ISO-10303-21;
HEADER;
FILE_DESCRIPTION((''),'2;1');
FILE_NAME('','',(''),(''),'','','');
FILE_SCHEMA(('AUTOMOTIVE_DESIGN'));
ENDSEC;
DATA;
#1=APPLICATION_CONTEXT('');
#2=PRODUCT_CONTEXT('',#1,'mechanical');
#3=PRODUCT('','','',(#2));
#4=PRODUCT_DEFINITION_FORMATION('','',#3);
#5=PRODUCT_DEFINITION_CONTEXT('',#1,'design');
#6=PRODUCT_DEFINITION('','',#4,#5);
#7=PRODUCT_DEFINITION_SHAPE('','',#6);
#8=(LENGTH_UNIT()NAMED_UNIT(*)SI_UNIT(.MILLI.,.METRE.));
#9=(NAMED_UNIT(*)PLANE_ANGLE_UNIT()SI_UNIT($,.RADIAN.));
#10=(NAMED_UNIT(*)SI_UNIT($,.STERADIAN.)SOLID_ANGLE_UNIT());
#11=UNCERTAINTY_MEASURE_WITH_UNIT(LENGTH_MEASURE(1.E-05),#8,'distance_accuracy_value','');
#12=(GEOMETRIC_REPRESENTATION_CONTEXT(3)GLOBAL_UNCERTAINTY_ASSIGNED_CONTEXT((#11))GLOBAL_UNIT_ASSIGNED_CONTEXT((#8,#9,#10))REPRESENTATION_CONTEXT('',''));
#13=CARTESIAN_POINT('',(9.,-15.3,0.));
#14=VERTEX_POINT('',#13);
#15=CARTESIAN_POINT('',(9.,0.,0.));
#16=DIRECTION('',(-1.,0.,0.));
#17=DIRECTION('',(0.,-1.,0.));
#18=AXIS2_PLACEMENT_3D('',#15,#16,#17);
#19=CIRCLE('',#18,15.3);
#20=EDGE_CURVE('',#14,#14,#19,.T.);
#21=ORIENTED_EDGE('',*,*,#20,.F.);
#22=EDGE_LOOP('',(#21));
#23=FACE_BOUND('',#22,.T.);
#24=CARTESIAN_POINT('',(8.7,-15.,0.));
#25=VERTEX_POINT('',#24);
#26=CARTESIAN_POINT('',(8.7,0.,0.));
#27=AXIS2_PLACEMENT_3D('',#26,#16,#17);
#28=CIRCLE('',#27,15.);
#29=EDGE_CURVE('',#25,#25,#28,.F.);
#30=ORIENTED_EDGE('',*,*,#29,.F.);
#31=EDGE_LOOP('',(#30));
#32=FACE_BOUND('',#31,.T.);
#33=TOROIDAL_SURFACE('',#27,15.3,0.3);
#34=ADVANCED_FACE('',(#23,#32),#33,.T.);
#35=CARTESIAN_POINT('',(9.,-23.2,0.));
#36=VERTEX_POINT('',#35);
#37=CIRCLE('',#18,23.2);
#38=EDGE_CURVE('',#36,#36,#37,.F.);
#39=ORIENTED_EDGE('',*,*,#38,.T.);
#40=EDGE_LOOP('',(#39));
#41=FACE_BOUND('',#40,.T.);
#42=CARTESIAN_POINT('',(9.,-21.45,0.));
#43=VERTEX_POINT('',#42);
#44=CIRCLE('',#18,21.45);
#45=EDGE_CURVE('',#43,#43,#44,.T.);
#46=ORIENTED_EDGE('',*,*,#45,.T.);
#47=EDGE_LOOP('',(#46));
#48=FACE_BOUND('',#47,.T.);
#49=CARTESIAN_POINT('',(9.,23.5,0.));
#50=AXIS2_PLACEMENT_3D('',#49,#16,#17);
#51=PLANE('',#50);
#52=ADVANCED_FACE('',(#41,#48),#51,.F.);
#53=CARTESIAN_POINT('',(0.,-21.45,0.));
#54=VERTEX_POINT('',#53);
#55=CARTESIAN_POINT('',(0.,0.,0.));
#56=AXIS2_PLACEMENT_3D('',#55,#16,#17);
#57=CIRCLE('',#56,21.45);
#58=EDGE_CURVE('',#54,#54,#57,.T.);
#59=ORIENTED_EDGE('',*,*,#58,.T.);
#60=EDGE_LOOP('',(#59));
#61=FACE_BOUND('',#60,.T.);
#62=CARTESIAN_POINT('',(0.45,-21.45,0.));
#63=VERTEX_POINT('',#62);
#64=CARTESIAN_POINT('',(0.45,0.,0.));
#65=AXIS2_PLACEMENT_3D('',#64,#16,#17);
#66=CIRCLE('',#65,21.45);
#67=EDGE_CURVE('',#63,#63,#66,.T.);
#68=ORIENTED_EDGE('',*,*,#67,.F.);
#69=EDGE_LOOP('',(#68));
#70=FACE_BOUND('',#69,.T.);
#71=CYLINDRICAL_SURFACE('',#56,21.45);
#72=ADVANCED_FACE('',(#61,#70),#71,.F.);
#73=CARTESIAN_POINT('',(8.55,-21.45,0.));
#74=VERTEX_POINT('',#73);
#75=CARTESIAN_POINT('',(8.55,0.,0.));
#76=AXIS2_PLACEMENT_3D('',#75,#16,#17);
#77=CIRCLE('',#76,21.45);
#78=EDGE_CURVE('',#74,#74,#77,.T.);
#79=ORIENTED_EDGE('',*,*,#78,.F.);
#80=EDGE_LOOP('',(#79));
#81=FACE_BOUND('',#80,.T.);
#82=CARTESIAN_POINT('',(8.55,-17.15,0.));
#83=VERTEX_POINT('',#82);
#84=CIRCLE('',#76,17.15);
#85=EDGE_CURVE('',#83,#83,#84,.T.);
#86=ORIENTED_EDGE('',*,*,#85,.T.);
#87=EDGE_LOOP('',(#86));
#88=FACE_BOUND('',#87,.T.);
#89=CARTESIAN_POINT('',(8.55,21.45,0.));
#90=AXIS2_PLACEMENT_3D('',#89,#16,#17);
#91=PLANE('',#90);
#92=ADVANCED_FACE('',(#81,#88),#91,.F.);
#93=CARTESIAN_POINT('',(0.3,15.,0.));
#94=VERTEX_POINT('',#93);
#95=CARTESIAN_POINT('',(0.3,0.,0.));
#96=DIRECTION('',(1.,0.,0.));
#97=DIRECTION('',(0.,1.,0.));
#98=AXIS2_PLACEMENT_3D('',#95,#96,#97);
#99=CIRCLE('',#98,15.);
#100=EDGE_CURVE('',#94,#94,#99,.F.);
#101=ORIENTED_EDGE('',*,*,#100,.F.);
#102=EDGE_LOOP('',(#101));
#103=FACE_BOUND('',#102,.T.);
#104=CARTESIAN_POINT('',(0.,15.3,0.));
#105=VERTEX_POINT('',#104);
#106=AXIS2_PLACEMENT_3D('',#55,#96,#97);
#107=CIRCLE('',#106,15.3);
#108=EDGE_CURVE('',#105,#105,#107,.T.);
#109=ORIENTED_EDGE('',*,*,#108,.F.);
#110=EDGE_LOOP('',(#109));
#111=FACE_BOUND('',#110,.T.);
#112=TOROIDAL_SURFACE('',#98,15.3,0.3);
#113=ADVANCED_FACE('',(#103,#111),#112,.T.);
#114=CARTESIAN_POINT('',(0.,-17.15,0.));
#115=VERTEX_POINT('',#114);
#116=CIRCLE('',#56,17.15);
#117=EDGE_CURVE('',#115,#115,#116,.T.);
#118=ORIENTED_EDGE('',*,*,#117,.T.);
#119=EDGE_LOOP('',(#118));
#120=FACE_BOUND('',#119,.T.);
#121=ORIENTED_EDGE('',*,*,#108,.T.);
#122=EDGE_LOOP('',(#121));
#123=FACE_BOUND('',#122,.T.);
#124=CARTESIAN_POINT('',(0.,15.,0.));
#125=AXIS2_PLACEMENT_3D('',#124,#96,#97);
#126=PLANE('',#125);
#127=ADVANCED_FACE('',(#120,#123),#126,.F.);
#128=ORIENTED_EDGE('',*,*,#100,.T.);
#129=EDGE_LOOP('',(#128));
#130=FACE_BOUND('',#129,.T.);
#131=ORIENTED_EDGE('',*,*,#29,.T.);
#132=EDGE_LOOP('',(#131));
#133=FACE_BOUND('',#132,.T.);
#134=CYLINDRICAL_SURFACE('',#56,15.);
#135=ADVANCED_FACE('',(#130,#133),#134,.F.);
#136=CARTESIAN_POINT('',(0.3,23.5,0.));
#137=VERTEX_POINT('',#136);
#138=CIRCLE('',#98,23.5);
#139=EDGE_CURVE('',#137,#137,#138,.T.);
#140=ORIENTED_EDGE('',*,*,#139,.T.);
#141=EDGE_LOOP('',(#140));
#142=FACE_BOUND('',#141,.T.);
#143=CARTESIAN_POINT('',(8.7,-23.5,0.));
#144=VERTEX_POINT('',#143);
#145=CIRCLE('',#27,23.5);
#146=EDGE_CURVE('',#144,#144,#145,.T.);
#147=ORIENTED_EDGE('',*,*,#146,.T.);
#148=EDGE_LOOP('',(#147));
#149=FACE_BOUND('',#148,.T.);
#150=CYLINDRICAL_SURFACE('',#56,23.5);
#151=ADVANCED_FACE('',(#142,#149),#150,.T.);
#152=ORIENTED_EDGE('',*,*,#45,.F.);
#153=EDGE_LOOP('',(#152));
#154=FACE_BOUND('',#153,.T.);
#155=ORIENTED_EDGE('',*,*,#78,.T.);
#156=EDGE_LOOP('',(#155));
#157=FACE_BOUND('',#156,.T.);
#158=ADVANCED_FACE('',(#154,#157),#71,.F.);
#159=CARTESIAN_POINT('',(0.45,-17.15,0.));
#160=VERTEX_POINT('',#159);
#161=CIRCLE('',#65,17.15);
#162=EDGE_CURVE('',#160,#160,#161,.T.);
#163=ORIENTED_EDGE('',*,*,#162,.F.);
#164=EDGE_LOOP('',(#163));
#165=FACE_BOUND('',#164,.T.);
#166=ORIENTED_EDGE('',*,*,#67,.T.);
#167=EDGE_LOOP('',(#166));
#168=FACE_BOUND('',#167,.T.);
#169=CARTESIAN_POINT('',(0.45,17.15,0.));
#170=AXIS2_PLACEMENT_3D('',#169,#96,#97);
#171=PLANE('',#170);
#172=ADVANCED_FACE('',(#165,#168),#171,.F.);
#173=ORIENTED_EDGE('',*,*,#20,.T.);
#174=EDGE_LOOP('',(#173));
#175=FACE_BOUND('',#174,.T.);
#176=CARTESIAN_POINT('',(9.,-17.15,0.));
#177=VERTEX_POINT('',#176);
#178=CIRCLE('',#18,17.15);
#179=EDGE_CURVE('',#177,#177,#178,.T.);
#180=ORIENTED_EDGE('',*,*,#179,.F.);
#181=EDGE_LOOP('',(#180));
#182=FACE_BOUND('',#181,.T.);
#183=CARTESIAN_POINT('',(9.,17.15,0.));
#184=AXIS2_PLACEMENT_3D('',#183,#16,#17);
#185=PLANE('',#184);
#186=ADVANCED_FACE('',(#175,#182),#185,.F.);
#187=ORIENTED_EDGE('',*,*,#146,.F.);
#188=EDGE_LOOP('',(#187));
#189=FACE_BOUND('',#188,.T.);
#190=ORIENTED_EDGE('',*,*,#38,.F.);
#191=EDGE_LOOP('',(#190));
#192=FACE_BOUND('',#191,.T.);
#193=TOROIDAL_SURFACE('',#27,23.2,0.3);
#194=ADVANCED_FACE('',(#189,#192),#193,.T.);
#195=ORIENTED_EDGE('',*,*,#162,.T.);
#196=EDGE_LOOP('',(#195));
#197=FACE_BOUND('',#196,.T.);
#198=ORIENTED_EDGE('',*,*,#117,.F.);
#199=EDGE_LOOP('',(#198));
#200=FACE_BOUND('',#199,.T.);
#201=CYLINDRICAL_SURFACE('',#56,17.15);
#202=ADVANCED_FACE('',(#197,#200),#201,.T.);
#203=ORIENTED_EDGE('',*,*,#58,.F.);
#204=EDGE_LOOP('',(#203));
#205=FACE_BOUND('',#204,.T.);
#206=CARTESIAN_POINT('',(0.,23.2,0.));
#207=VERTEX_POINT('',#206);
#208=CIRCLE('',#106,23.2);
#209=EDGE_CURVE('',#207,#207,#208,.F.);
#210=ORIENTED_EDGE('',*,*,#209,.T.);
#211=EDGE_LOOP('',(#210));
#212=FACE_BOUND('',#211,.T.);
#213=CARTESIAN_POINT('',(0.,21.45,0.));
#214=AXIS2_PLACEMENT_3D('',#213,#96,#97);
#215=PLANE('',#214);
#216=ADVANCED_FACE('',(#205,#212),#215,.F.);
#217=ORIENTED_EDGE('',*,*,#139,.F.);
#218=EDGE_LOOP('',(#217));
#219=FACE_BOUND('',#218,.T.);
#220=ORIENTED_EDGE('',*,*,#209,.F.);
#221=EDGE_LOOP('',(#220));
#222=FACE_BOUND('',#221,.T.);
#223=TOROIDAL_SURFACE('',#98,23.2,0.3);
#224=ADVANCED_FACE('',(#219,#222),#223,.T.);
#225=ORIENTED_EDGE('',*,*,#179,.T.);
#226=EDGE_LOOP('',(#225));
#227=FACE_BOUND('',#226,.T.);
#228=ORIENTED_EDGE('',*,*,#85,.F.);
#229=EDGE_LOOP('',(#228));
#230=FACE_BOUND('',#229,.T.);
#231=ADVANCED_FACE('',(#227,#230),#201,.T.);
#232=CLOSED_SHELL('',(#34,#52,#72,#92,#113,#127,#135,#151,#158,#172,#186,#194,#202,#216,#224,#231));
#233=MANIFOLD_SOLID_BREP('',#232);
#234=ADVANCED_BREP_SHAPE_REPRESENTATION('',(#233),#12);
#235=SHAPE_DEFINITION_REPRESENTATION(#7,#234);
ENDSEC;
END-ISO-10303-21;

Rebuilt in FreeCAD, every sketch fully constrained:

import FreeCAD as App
import Part
import Sketcher
from FreeCAD import Vector
Q = App.Units.Quantity


def edges_at(feature, points):
    """Names of the edges that pass closest to the given points."""
    edges = feature.Shape.Edges
    near = lambda p: min(range(len(edges)), key=lambda i: edges[i].distToShape(Part.Vertex(*p))[0])
    return sorted({f"Edge{near(p) + 1}" for p in points})

doc = App.newDocument("Part")
body = doc.addObject("PartDesign::Body", "Body")

# Sketch on XY plane
sketch1 = body.newObject("Sketcher::SketchObject", "Sketch")
sketch1.AttachmentSupport = (doc.getObject("XY_Plane"), [""])
sketch1.MapMode = "FlatFace"
sketch1.addGeometry(Part.LineSegment(Vector(0, 17.15, 0), Vector(0, 15, 0)), False)
sketch1.addGeometry(Part.LineSegment(Vector(0, 15, 0), Vector(9, 15, 0)), False)
sketch1.addGeometry(Part.LineSegment(Vector(9, 15, 0), Vector(9, 17.15, 0)), False)
sketch1.addGeometry(Part.LineSegment(Vector(9, 17.15, 0), Vector(8.55, 17.15, 0)), False)
sketch1.addGeometry(Part.LineSegment(Vector(8.55, 17.15, 0), Vector(8.55, 21.45, 0)), False)
sketch1.addGeometry(Part.LineSegment(Vector(8.55, 21.45, 0), Vector(9, 21.45, 0)), False)
sketch1.addGeometry(Part.LineSegment(Vector(9, 21.45, 0), Vector(9, 23.5, 0)), False)
sketch1.addGeometry(Part.LineSegment(Vector(9, 23.5, 0), Vector(0, 23.5, 0)), False)
sketch1.addGeometry(Part.LineSegment(Vector(0, 23.5, 0), Vector(0, 21.45, 0)), False)
sketch1.addGeometry(Part.LineSegment(Vector(0, 21.45, 0), Vector(0.45, 21.45, 0)), False)
sketch1.addGeometry(Part.LineSegment(Vector(0.45, 21.45, 0), Vector(0.45, 17.15, 0)), False)
sketch1.addGeometry(Part.LineSegment(Vector(0.45, 17.15, 0), Vector(0, 17.15, 0)), False)
sketch1.addConstraint(Sketcher.Constraint("Coincident", 0, 2, 1, 1))
sketch1.addConstraint(Sketcher.Constraint("Coincident", 1, 2, 2, 1))
sketch1.addConstraint(Sketcher.Constraint("Coincident", 2, 2, 3, 1))
sketch1.addConstraint(Sketcher.Constraint("Coincident", 3, 2, 4, 1))
sketch1.addConstraint(Sketcher.Constraint("Coincident", 4, 2, 5, 1))
sketch1.addConstraint(Sketcher.Constraint("Coincident", 5, 2, 6, 1))
sketch1.addConstraint(Sketcher.Constraint("Coincident", 6, 2, 7, 1))
sketch1.addConstraint(Sketcher.Constraint("Coincident", 7, 2, 8, 1))
sketch1.addConstraint(Sketcher.Constraint("Coincident", 8, 2, 9, 1))
sketch1.addConstraint(Sketcher.Constraint("Coincident", 9, 2, 10, 1))
sketch1.addConstraint(Sketcher.Constraint("Coincident", 10, 2, 11, 1))
sketch1.addConstraint(Sketcher.Constraint("Coincident", 11, 2, 0, 1))
sketch1.addConstraint(Sketcher.Constraint("Vertical", 0))
sketch1.addConstraint(Sketcher.Constraint("Horizontal", 1))
sketch1.addConstraint(Sketcher.Constraint("Vertical", 2))
sketch1.addConstraint(Sketcher.Constraint("Horizontal", 3))
sketch1.addConstraint(Sketcher.Constraint("Vertical", 4))
sketch1.addConstraint(Sketcher.Constraint("Horizontal", 5))
sketch1.addConstraint(Sketcher.Constraint("Vertical", 6))
sketch1.addConstraint(Sketcher.Constraint("Horizontal", 7))
sketch1.addConstraint(Sketcher.Constraint("Vertical", 8))
sketch1.addConstraint(Sketcher.Constraint("Horizontal", 9))
sketch1.addConstraint(Sketcher.Constraint("Vertical", 10))
sketch1.addConstraint(Sketcher.Constraint("Horizontal", 11))
sketch1.addConstraint(Sketcher.Constraint("PointOnObject", 0, 2, -2))
sketch1.addConstraint(Sketcher.Constraint("PointOnObject", 7, 2, -2))
sketch1.addConstraint(Sketcher.Constraint("Horizontal", 5, 2, 8, 2))
sketch1.addConstraint(Sketcher.Constraint("Horizontal", 3, 2, 10, 2))
sketch1.addConstraint(Sketcher.Constraint("Vertical", 2, 2, 5, 2))
sketch1.addConstraint(Sketcher.Constraint("Equal", 5, 9))
sketch1.addConstraint(Sketcher.Constraint("DistanceX", 1, 1, 1, 2, Q("9 mm")))
sketch1.addConstraint(Sketcher.Constraint("DistanceY", 4, 1, 4, 2, Q("4.3 mm")))
sketch1.addConstraint(Sketcher.Constraint("DistanceY", -1, 1, 0, 2, Q("15 mm")))
sketch1.addConstraint(Sketcher.Constraint("DistanceX", 3, 2, 3, 1, Q("0.45 mm")))
sketch1.addConstraint(Sketcher.Constraint("DistanceY", 0, 2, 0, 1, Q("2.15 mm")))
sketch1.addConstraint(Sketcher.Constraint("DistanceY", 6, 1, 6, 2, Q("2.05 mm")))
revolution = body.newObject("PartDesign::Revolution", "Revolution")
revolution.Profile = sketch1
revolution.ReferenceAxis = (sketch1, ["H_Axis"])
revolution.Angle = 360
doc.recompute()

fillet = body.newObject("PartDesign::Fillet", "Fillet")
fillet.Base = (revolution, edges_at(revolution, [
    (9, 23.5, 0),
    (0, 23.5, 0),
    (0, 15, 0),
    (9, 15, 0),
]))
fillet.Radius = 0.3

doc.recompute()
